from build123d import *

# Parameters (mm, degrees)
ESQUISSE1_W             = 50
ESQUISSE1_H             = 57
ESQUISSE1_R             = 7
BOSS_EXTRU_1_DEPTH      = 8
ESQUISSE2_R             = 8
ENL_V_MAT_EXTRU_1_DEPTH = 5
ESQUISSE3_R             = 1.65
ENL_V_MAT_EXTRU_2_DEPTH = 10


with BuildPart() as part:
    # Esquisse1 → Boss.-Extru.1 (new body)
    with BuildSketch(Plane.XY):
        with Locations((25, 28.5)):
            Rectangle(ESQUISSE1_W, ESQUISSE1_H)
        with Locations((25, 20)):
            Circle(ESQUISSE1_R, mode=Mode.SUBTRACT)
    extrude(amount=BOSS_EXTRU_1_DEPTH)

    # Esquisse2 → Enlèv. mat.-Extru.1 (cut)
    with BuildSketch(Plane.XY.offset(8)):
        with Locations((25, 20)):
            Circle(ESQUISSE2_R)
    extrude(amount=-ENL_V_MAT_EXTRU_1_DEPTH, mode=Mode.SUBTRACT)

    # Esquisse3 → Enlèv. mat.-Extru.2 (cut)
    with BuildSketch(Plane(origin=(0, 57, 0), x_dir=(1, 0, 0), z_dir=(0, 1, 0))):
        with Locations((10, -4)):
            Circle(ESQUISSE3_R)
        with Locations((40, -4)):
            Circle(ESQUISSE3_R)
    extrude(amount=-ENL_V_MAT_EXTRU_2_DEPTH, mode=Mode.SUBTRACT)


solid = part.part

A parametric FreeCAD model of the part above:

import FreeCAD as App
import Part
import Sketcher
from FreeCAD import Vector
Q = App.Units.Quantity

doc = App.newDocument("Part")
body = doc.addObject("PartDesign::Body", "Body")

sketch1 = doc.addObject("Sketcher::SketchObject", "Sketch")
body.addObject(sketch1)
sketch1.AttachmentSupport = (doc.XY_Plane, [""])
sketch1.MapMode = "FlatFace"
sketch1.addGeometry([
    Part.LineSegment(Vector(0, 57, 0), Vector(0, 0, 0)),
    Part.LineSegment(Vector(0, 0, 0), Vector(50, 0, 0)),
    Part.LineSegment(Vector(50, 0, 0), Vector(50, 57, 0)),
    Part.LineSegment(Vector(50, 57, 0), Vector(0, 57, 0)),
    Part.Circle(Vector(25, 20, 0), Vector(0, 0, 1), 7),
], False)
sketch1.addConstraint([
    Sketcher.Constraint("Coincident", 0, 2, 1, 1),
    Sketcher.Constraint("Coincident", 1, 2, 2, 1),
    Sketcher.Constraint("Coincident", 2, 2, 3, 1),
    Sketcher.Constraint("Coincident", 3, 2, 0, 1),
    Sketcher.Constraint("Vertical", 0),
    Sketcher.Constraint("Horizontal", 1),
    Sketcher.Constraint("Vertical", 2),
    Sketcher.Constraint("Horizontal", 3),
    Sketcher.Constraint("Coincident", 0, 2, -1, 1),
    Sketcher.Constraint("Diameter", 4, Q("14 mm")),
    Sketcher.Constraint("DistanceX", 1, 1, 1, 2, Q("50 mm")),
    Sketcher.Constraint("DistanceY", 0, 2, 0, 1, Q("57 mm")),
    Sketcher.Constraint("DistanceX", -1, 1, 4, 3, Q("25 mm")),
    Sketcher.Constraint("DistanceY", -1, 1, 4, 3, Q("20 mm")),
])
pad1 = doc.addObject("PartDesign::Pad", "Pad")
body.addObject(pad1)
pad1.Profile = sketch1
pad1.Length = 8

sketch2 = doc.addObject("Sketcher::SketchObject", "Sketch001")
body.addObject(sketch2)
sketch2.AttachmentSupport = (doc.XY_Plane, [""])
sketch2.MapMode = "FlatFace"
sketch2.AttachmentOffset = App.Placement(Vector(0, 0, 8), App.Rotation())
sketch2.addGeometry(Part.Circle(Vector(25, 20, 0), Vector(0, 0, 1), 8), False)
sketch2.addConstraint([
    Sketcher.Constraint("Diameter", 0, Q("16 mm")),
    Sketcher.Constraint("DistanceX", -1, 1, 0, 3, Q("25 mm")),
    Sketcher.Constraint("DistanceY", -1, 1, 0, 3, Q("20 mm")),
])
pocket1 = doc.addObject("PartDesign::Pocket", "Pocket")
body.addObject(pocket1)
pocket1.Profile = sketch2
pocket1.Length = 5

sketch3 = doc.addObject("Sketcher::SketchObject", "Sketch002")
body.addObject(sketch3)
sketch3.AttachmentSupport = (doc.XZ_Plane, [""])
sketch3.MapMode = "FlatFace"
sketch3.AttachmentOffset = App.Placement(Vector(0, 0, -57), App.Rotation())
sketch3.addGeometry([
    Part.Circle(Vector(10, 4, 0), Vector(0, 0, 1), 1.6),
    Part.Circle(Vector(40, 4, 0), Vector(0, 0, 1), 1.6),
], False)
sketch3.addConstraint([
    Sketcher.Constraint("Equal", 0, 1),
    Sketcher.Constraint("Horizontal", 0, 3, 1, 3),
    Sketcher.Constraint("Diameter", 0, Q("3.3 mm")),
    Sketcher.Constraint("DistanceX", -1, 1, 0, 3, Q("10 mm")),
    Sketcher.Constraint("DistanceY", -1, 1, 0, 3, Q("4 mm")),
    Sketcher.Constraint("DistanceX", -1, 1, 1, 3, Q("40 mm")),
])
pocket2 = doc.addObject("PartDesign::Pocket", "Pocket001")
body.addObject(pocket2)
pocket2.Profile = sketch3
pocket2.Length = 10
pocket2.Reversed = True

doc.recompute()
